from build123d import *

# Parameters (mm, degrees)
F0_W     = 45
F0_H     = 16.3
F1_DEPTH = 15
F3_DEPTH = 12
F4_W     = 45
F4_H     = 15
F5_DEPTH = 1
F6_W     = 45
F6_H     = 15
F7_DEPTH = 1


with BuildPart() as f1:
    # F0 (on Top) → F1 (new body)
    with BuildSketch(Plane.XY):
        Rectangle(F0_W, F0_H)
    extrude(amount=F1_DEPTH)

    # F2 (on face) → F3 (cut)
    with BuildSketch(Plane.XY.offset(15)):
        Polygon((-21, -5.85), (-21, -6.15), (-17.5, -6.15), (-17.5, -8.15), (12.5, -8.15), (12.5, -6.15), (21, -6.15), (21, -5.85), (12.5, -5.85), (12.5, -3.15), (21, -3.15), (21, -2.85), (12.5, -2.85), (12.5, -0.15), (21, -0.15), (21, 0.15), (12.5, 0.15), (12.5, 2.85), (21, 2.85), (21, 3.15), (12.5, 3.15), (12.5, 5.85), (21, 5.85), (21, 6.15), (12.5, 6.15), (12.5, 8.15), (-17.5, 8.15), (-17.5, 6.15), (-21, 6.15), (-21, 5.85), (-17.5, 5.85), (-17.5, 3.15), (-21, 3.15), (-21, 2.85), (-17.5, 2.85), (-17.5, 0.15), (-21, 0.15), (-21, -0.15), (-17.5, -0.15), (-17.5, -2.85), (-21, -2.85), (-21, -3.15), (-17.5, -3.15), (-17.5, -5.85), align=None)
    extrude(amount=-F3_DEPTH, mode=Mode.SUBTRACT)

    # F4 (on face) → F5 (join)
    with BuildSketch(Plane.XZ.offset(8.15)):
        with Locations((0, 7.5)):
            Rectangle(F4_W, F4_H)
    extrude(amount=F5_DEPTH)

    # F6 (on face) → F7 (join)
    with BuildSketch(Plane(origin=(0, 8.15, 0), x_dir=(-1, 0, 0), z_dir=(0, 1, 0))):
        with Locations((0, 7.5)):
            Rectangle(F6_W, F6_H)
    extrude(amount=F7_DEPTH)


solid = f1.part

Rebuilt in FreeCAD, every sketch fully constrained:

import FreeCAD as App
import Part
import Sketcher
Q = App.Units.Quantity

doc = App.newDocument("Part")
body = doc.addObject("PartDesign::Body", "Body")

sketch1 = doc.addObject("Sketcher::SketchObject", "Sketch")
body.addObject(sketch1)
sketch1.AttachmentSupport = (doc.XY_Plane, [""])
sketch1.MapMode = "FlatFace"
sketch1.addGeometry([
    Part.LineSegment(App.Vector(-22.5, 8.15, 0), App.Vector(-22.5, -8.15, 0)),
    Part.LineSegment(App.Vector(-22.5, -8.15, 0), App.Vector(22.5, -8.15, 0)),
    Part.LineSegment(App.Vector(22.5, -8.15, 0), App.Vector(22.5, 8.15, 0)),
    Part.LineSegment(App.Vector(22.5, 8.15, 0), App.Vector(-22.5, 8.15, 0)),
], False)
sketch1.addConstraint([
    Sketcher.Constraint("Coincident", 0, 2, 1, 1),
    Sketcher.Constraint("Coincident", 1, 2, 2, 1),
    Sketcher.Constraint("Coincident", 2, 2, 3, 1),
    Sketcher.Constraint("Coincident", 3, 2, 0, 1),
    Sketcher.Constraint("Vertical", 0),
    Sketcher.Constraint("Horizontal", 1),
    Sketcher.Constraint("Vertical", 2),
    Sketcher.Constraint("Horizontal", 3),
    Sketcher.Constraint("Symmetric", 0, 2, 2, 2, -1, 1),
    Sketcher.Constraint("DistanceX", 1, 1, 1, 2, Q("45 mm")),
    Sketcher.Constraint("DistanceY", 0, 2, 0, 1, Q("16.3 mm")),
])
pad1 = doc.addObject("PartDesign::Pad", "Pad")
body.addObject(pad1)
pad1.Profile = sketch1
pad1.Length = 15

sketch2 = doc.addObject("Sketcher::SketchObject", "Sketch001")
body.addObject(sketch2)
sketch2.AttachmentSupport = (doc.XY_Plane, [""])
sketch2.MapMode = "FlatFace"
sketch2.AttachmentOffset = App.Placement(App.Vector(0, 0, 15), App.Rotation())
sketch2.addGeometry([
    Part.LineSegment(App.Vector(-21, -5.85, 0), App.Vector(-21, -6.15, 0)),
    Part.LineSegment(App.Vector(-21, -6.15, 0), App.Vector(-17.5, -6.15, 0)),
    Part.LineSegment(App.Vector(-17.5, -6.15, 0), App.Vector(-17.5, -8.15, 0)),
    Part.LineSegment(App.Vector(-17.5, -8.15, 0), App.Vector(12.5, -8.15, 0)),
    Part.LineSegment(App.Vector(12.5, -8.15, 0), App.Vector(12.5, -6.15, 0)),
    Part.LineSegment(App.Vector(12.5, -6.15, 0), App.Vector(21, -6.15, 0)),
    Part.LineSegment(App.Vector(21, -6.15, 0), App.Vector(21, -5.85, 0)),
    Part.LineSegment(App.Vector(21, -5.85, 0), App.Vector(12.5, -5.85, 0)),
    Part.LineSegment(App.Vector(12.5, -5.85, 0), App.Vector(12.5, -3.15, 0)),
    Part.LineSegment(App.Vector(12.5, -3.15, 0), App.Vector(21, -3.15, 0)),
    Part.LineSegment(App.Vector(21, -3.15, 0), App.Vector(21, -2.85, 0)),
    Part.LineSegment(App.Vector(21, -2.85, 0), App.Vector(12.5, -2.85, 0)),
    Part.LineSegment(App.Vector(12.5, -2.85, 0), App.Vector(12.5, -0.15, 0)),
    Part.LineSegment(App.Vector(12.5, -0.15, 0), App.Vector(21, -0.15, 0)),
    Part.LineSegment(App.Vector(21, -0.15, 0), App.Vector(21, 0.15, 0)),
    Part.LineSegment(App.Vector(21, 0.15, 0), App.Vector(12.5, 0.15, 0)),
    Part.LineSegment(App.Vector(12.5, 0.15, 0), App.Vector(12.5, 2.85, 0)),
    Part.LineSegment(App.Vector(12.5, 2.85, 0), App.Vector(21, 2.85, 0)),
    Part.LineSegment(App.Vector(21, 2.85, 0), App.Vector(21, 3.15, 0)),
    Part.LineSegment(App.Vector(21, 3.15, 0), App.Vector(12.5, 3.15, 0)),
    Part.LineSegment(App.Vector(12.5, 3.15, 0), App.Vector(12.5, 5.85, 0)),
    Part.LineSegment(App.Vector(12.5, 5.85, 0), App.Vector(21, 5.85, 0)),
    Part.LineSegment(App.Vector(21, 5.85, 0), App.Vector(21, 6.15, 0)),
    Part.LineSegment(App.Vector(21, 6.15, 0), App.Vector(12.5, 6.15, 0)),
    Part.LineSegment(App.Vector(12.5, 6.15, 0), App.Vector(12.5, 8.15, 0)),
    Part.LineSegment(App.Vector(12.5, 8.15, 0), App.Vector(-17.5, 8.15, 0)),
    Part.LineSegment(App.Vector(-17.5, 8.15, 0), App.Vector(-17.5, 6.15, 0)),
    Part.LineSegment(App.Vector(-17.5, 6.15, 0), App.Vector(-21, 6.15, 0)),
    Part.LineSegment(App.Vector(-21, 6.15, 0), App.Vector(-21, 5.85, 0)),
    Part.LineSegment(App.Vector(-21, 5.85, 0), App.Vector(-17.5, 5.85, 0)),
    Part.LineSegment(App.Vector(-17.5, 5.85, 0), App.Vector(-17.5, 3.15, 0)),
    Part.LineSegment(App.Vector(-17.5, 3.15, 0), App.Vector(-21, 3.15, 0)),
    Part.LineSegment(App.Vector(-21, 3.15, 0), App.Vector(-21, 2.85, 0)),
    Part.LineSegment(App.Vector(-21, 2.85, 0), App.Vector(-17.5, 2.85, 0)),
    Part.LineSegment(App.Vector(-17.5, 2.85, 0), App.Vector(-17.5, 0.15, 0)),
    Part.LineSegment(App.Vector(-17.5, 0.15, 0), App.Vector(-21, 0.15, 0)),
    Part.LineSegment(App.Vector(-21, 0.15, 0), App.Vector(-21, -0.15, 0)),
    Part.LineSegment(App.Vector(-21, -0.15, 0), App.Vector(-17.5, -0.15, 0)),
    Part.LineSegment(App.Vector(-17.5, -0.15, 0), App.Vector(-17.5, -2.85, 0)),
    Part.LineSegment(App.Vector(-17.5, -2.85, 0), App.Vector(-21, -2.85, 0)),
    Part.LineSegment(App.Vector(-21, -2.85, 0), App.Vector(-21, -3.15, 0)),
    Part.LineSegment(App.Vector(-21, -3.15, 0), App.Vector(-17.5, -3.15, 0)),
    Part.LineSegment(App.Vector(-17.5, -3.15, 0), App.Vector(-17.5, -5.85, 0)),
    Part.LineSegment(App.Vector(-17.5, -5.85, 0), App.Vector(-21, -5.85, 0)),
], False)
sketch2.addConstraint([
    Sketcher.Constraint("Coincident", 0, 2, 1, 1),
    Sketcher.Constraint("Coincident", 1, 2, 2, 1),
    Sketcher.Constraint("Coincident", 2, 2, 3, 1),
    Sketcher.Constraint("Coincident", 3, 2, 4, 1),
    Sketcher.Constraint("Coincident", 4, 2, 5, 1),
    Sketcher.Constraint("Coincident", 5, 2, 6, 1),
    Sketcher.Constraint("Coincident", 6, 2, 7, 1),
    Sketcher.Constraint("Coincident", 7, 2, 8, 1),
    Sketcher.Constraint("Coincident", 8, 2, 9, 1),
    Sketcher.Constraint("Coincident", 9, 2, 10, 1),
    Sketcher.Constraint("Coincident", 10, 2, 11, 1),
    Sketcher.Constraint("Coincident", 11, 2, 12, 1),
    Sketcher.Constraint("Coincident", 12, 2, 13, 1),
    Sketcher.Constraint("Coincident", 13, 2, 14, 1),
    Sketcher.Constraint("Coincident", 14, 2, 15, 1),
    Sketcher.Constraint("Coincident", 15, 2, 16, 1),
    Sketcher.Constraint("Coincident", 16, 2, 17, 1),
    Sketcher.Constraint("Coincident", 17, 2, 18, 1),
    Sketcher.Constraint("Coincident", 18, 2, 19, 1),
    Sketcher.Constraint("Coincident", 19, 2, 20, 1),
    Sketcher.Constraint("Coincident", 20, 2, 21, 1),
    Sketcher.Constraint("Coincident", 21, 2, 22, 1),
    Sketcher.Constraint("Coincident", 22, 2, 23, 1),
    Sketcher.Constraint("Coincident", 23, 2, 24, 1),
    Sketcher.Constraint("Coincident", 24, 2, 25, 1),
    Sketcher.Constraint("Coincident", 25, 2, 26, 1),
    Sketcher.Constraint("Coincident", 26, 2, 27, 1),
    Sketcher.Constraint("Coincident", 27, 2, 28, 1),
    Sketcher.Constraint("Coincident", 28, 2, 29, 1),
    Sketcher.Constraint("Coincident", 29, 2, 30, 1),
    Sketcher.Constraint("Coincident", 30, 2, 31, 1),
    Sketcher.Constraint("Coincident", 31, 2, 32, 1),
    Sketcher.Constraint("Coincident", 32, 2, 33, 1),
    Sketcher.Constraint("Coincident", 33, 2, 34, 1),
    Sketcher.Constraint("Coincident", 34, 2, 35, 1),
    Sketcher.Constraint("Coincident", 35, 2, 36, 1),
    Sketcher.Constraint("Coincident", 36, 2, 37, 1),
    Sketcher.Constraint("Coincident", 37, 2, 38, 1),
    Sketcher.Constraint("Coincident", 38, 2, 39, 1),
    Sketcher.Constraint("Coincident", 39, 2, 40, 1),
    Sketcher.Constraint("Coincident", 40, 2, 41, 1),
    Sketcher.Constraint("Coincident", 41, 2, 42, 1),
    Sketcher.Constraint("Coincident", 42, 2, 43, 1),
    Sketcher.Constraint("Coincident", 43, 2, 0, 1),
    Sketcher.Constraint("Vertical", 0),
    Sketcher.Constraint("Horizontal", 1),
    Sketcher.Constraint("Vertical", 2),
    Sketcher.Constraint("Horizontal", 3),
    Sketcher.Constraint("Vertical", 4),
    Sketcher.Constraint("Horizontal", 5),
    Sketcher.Constraint("Vertical", 6),
    Sketcher.Constraint("Horizontal", 7),
    Sketcher.Constraint("Vertical", 8),
    Sketcher.Constraint("Horizontal", 9),
    Sketcher.Constraint("Vertical", 10),
    Sketcher.Constraint("Horizontal", 11),
    Sketcher.Constraint("Vertical", 12),
    Sketcher.Constraint("Horizontal", 13),
    Sketcher.Constraint("Vertical", 14),
    Sketcher.Constraint("Horizontal", 15),
    Sketcher.Constraint("Vertical", 16),
    Sketcher.Constraint("Horizontal", 17),
    Sketcher.Constraint("Vertical", 18),
    Sketcher.Constraint("Horizontal", 19),
    Sketcher.Constraint("Vertical", 20),
    Sketcher.Constraint("Horizontal", 21),
    Sketcher.Constraint("Vertical", 22),
    Sketcher.Constraint("Horizontal", 23),
    Sketcher.Constraint("Vertical", 24),
    Sketcher.Constraint("Horizontal", 25),
    Sketcher.Constraint("Vertical", 26),
    Sketcher.Constraint("Horizontal", 27),
    Sketcher.Constraint("Vertical", 28),
    Sketcher.Constraint("Horizontal", 29),
    Sketcher.Constraint("Vertical", 30),
    Sketcher.Constraint("Horizontal", 31),
    Sketcher.Constraint("Vertical", 32),
    Sketcher.Constraint("Horizontal", 33),
    Sketcher.Constraint("Vertical", 34),
    Sketcher.Constraint("Horizontal", 35),
    Sketcher.Constraint("Vertical", 36),
    Sketcher.Constraint("Horizontal", 37),
    Sketcher.Constraint("Vertical", 38),
    Sketcher.Constraint("Horizontal", 39),
    Sketcher.Constraint("Vertical", 40),
    Sketcher.Constraint("Horizontal", 41),
    Sketcher.Constraint("Vertical", 42),
    Sketcher.Constraint("Horizontal", 43),
    Sketcher.Constraint("Symmetric", 0, 2, 22, 2, -1, 1),
    Sketcher.Constraint("Symmetric", 5, 2, 27, 2, -1, 1),
    Sketcher.Constraint("Symmetric", 9, 2, 31, 2, -1, 1),
    Sketcher.Constraint("Symmetric", 13, 2, 35, 2, -1, 1),
    Sketcher.Constraint("Symmetric", 17, 2, 39, 2, -1, 1),
    Sketcher.Constraint("Symmetric", 0, 2, 5, 2, -2),
    Sketcher.Constraint("Symmetric", 18, 2, 31, 2, -2),
    Sketcher.Constraint("Symmetric", 12, 2, 15, 2, -1),
    Sketcher.Constraint("Symmetric", 7, 2, 20, 2, -1),
    Sketcher.Constraint("Symmetric", 3, 2, 24, 2, -1),
    Sketcher.Constraint("Symmetric", 34, 2, 37, 2, -1),
    Sketcher.Constraint("Symmetric", 30, 2, 41, 2, -1),
    Sketcher.Constraint("Horizontal", 21, 2, 28, 2),
    Sketcher.Constraint("Horizontal", 17, 2, 32, 2),
    Sketcher.Constraint("Horizontal", 11, 2, 38, 2),
    Sketcher.Constraint("Horizontal", 7, 2, 42, 2),
    Sketcher.Constraint("Vertical", 4, 2, 7, 2),
    Sketcher.Constraint("Vertical", 6, 2, 9, 2),
    Sketcher.Constraint("Vertical", 8, 2, 11, 2),
    Sketcher.Constraint("Vertical", 10, 2, 13, 2),
    Sketcher.Constraint("Vertical", 2, 2, 25, 2),
    Sketcher.Constraint("Vertical", 26, 2, 29, 2),
    Sketcher.Constraint("Vertical", 30, 2, 33, 2),
    Sketcher.Constraint("Equal", 6, 10),
    Sketcher.Constraint("Equal", 8, 12),
    Sketcher.Constraint("Equal", 10, 14),
    Sketcher.Constraint("DistanceX", 3, 1, 3, 2, Q("30 mm")),
    Sketcher.Constraint("DistanceY", 2, 2, 2, 1, Q("2 mm")),
    Sketcher.Constraint("DistanceX", 1, 1, 1, 2, Q("3.5 mm")),
    Sketcher.Constraint("DistanceX", 5, 1, 5, 2, Q("8.5 mm")),
    Sketcher.Constraint("DistanceY", 0, 2, 0, 1, Q("0.3 mm")),
    Sketcher.Constraint("DistanceY", 8, 1, 8, 2, Q("2.7 mm")),
])
pocket1 = doc.addObject("PartDesign::Pocket", "Pocket")
body.addObject(pocket1)
pocket1.Profile = sketch2
pocket1.Length = 12

sketch3 = doc.addObject("Sketcher::SketchObject", "Sketch002")
body.addObject(sketch3)
sketch3.AttachmentSupport = (doc.XZ_Plane, [""])
sketch3.MapMode = "FlatFace"
sketch3.AttachmentOffset = App.Placement(App.Vector(0, 0, 8.15), App.Rotation())
sketch3.addGeometry([
    Part.LineSegment(App.Vector(-22.5, 15, 0), App.Vector(-22.5, 0, 0)),
    Part.LineSegment(App.Vector(-22.5, 0, 0), App.Vector(22.5, 0, 0)),
    Part.LineSegment(App.Vector(22.5, 0, 0), App.Vector(22.5, 15, 0)),
    Part.LineSegment(App.Vector(22.5, 15, 0), App.Vector(-22.5, 15, 0)),
], False)
sketch3.addConstraint([
    Sketcher.Constraint("Coincident", 0, 2, 1, 1),
    Sketcher.Constraint("Coincident", 1, 2, 2, 1),
    Sketcher.Constraint("Coincident", 2, 2, 3, 1),
    Sketcher.Constraint("Coincident", 3, 2, 0, 1),
    Sketcher.Constraint("Vertical", 0),
    Sketcher.Constraint("Horizontal", 1),
    Sketcher.Constraint("Vertical", 2),
    Sketcher.Constraint("Horizontal", 3),
    Sketcher.Constraint("Symmetric", 0, 2, 1, 2, -1, 1),
    Sketcher.Constraint("DistanceX", 1, 1, 1, 2, Q("45 mm")),
    Sketcher.Constraint("DistanceY", 0, 2, 0, 1, Q("15 mm")),
])
pad2 = doc.addObject("PartDesign::Pad", "Pad001")
body.addObject(pad2)
pad2.Profile = sketch3
pad2.Length = 1

sketch4 = doc.addObject("Sketcher::SketchObject", "Sketch003")
body.addObject(sketch4)
sketch4.AttachmentSupport = (doc.XZ_Plane, [""])
sketch4.MapMode = "FlatFace"
sketch4.AttachmentOffset = App.Placement(App.Vector(0, 0, -8.15), App.Rotation())
sketch4.addGeometry([
    Part.LineSegment(App.Vector(22.5, 15, 0), App.Vector(22.5, 0, 0)),
    Part.LineSegment(App.Vector(22.5, 0, 0), App.Vector(-22.5, 0, 0)),
    Part.LineSegment(App.Vector(-22.5, 0, 0), App.Vector(-22.5, 15, 0)),
    Part.LineSegment(App.Vector(-22.5, 15, 0), App.Vector(22.5, 15, 0)),
], False)
sketch4.addConstraint([
    Sketcher.Constraint("Coincident", 0, 2, 1, 1),
    Sketcher.Constraint("Coincident", 1, 2, 2, 1),
    Sketcher.Constraint("Coincident", 2, 2, 3, 1),
    Sketcher.Constraint("Coincident", 3, 2, 0, 1),
    Sketcher.Constraint("Vertical", 0),
    Sketcher.Constraint("Horizontal", 1),
    Sketcher.Constraint("Vertical", 2),
    Sketcher.Constraint("Horizontal", 3),
    Sketcher.Constraint("Symmetric", 0, 2, 1, 2, -1, 1),
    Sketcher.Constraint("DistanceX", 1, 2, 1, 1, Q("45 mm")),
    Sketcher.Constraint("DistanceY", 0, 2, 0, 1, Q("15 mm")),
])
pad3 = doc.addObject("PartDesign::Pad", "Pad002")
body.addObject(pad3)
pad3.Profile = sketch4
pad3.Length = 1
pad3.Reversed = True

doc.recompute()
